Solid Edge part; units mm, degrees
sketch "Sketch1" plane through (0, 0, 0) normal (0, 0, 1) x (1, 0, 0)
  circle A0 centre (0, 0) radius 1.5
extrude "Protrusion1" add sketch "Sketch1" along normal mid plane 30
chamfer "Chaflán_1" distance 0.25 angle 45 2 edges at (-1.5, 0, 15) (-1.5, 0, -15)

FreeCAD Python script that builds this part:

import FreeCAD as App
import Part
import Sketcher


def edges_at(feature, points):
    """Names of the edges that pass closest to the given points."""
    edges = feature.Shape.Edges
    near = lambda p: min(range(len(edges)), key=lambda i: edges[i].distToShape(Part.Vertex(*p))[0])
    return sorted({f"Edge{near(p) + 1}" for p in points})

doc = App.newDocument("Part")
body = doc.addObject("PartDesign::Body", "Body")

# Sketch on XY plane
sketch1 = body.newObject("Sketcher::SketchObject", "Sketch")
sketch1.AttachmentSupport = (doc.getObject("XY_Plane"), [""])
sketch1.MapMode = "FlatFace"
sketch1.addGeometry(Part.Circle(App.Vector(0, 0, 0), App.Vector(0, 0, 1), 1.5), False)
sketch1.addConstraint([
    Sketcher.Constraint("Coincident", 0, 3, -1, 1),
    Sketcher.Constraint("Diameter", 0, 3.0),
])
pad1 = body.newObject("PartDesign::Pad", "Pad")
pad1.Profile = sketch1
pad1.Length = 30
pad1.Midplane = True
doc.recompute()

chamfer = body.newObject("PartDesign::Chamfer", "Chamfer")
chamfer.Base = (pad1, edges_at(pad1, [(-1.5, 0, 15), (-1.5, 0, -15)]))
chamfer.Size = 0.25

doc.recompute()
